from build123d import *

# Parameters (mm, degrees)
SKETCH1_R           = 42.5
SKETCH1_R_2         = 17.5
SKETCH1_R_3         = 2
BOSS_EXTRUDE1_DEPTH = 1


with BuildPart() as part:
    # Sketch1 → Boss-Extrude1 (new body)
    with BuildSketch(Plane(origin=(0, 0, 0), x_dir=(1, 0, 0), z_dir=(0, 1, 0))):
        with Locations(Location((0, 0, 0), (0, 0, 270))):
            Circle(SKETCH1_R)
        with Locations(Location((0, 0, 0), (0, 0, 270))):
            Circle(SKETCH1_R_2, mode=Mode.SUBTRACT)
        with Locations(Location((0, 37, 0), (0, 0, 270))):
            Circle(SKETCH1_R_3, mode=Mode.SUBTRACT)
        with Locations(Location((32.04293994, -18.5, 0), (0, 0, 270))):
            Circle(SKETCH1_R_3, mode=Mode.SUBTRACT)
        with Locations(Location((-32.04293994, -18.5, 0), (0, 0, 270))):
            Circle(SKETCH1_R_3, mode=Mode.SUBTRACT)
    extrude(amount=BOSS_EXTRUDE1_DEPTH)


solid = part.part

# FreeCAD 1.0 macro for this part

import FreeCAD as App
import Part
import Sketcher
from FreeCAD import Vector

doc = App.newDocument("Part")
body = doc.addObject("PartDesign::Body", "Body")

sketch1 = body.newObject("Sketcher::SketchObject", "Sketch")
sketch1.AttachmentSupport = (doc.getObject("XZ_Plane"), [""])
sketch1.MapMode = "FlatFace"
sketch1.addGeometry([
    Part.Circle(Vector(0, 0, 0), Vector(0, 0, 1), 42.5),
    Part.Circle(Vector(0, -37, 0), Vector(0, 0, 1), 2),
    Part.Circle(Vector(-32, 18.5, 0), Vector(0, 0, 1), 2),
    Part.Circle(Vector(0, 0, 0), Vector(0, 0, 1), 17.5),
    Part.Circle(Vector(32, 18.5, 0), Vector(0, 0, 1), 2),
], False)
sketch1.addConstraint([
    Sketcher.Constraint("Coincident", 0, 3, -1, 1),
    Sketcher.Constraint("Coincident", 3, 3, -1, 1),
    Sketcher.Constraint("Equal", 1, 2),
    Sketcher.Constraint("Equal", 2, 4),
    Sketcher.Constraint("Symmetric", 2, 3, 4, 3, -2),
    Sketcher.Constraint("PointOnObject", 1, 3, -2),
    Sketcher.Constraint("Diameter", 0, 85.0),
    Sketcher.Constraint("Diameter", 1, 4.0),
    Sketcher.Constraint("Diameter", 3, 35.0),
    Sketcher.Constraint("DistanceY", 1, 3, -1, 1, 37.0),
    Sketcher.Constraint("DistanceY", -1, 1, 2, 3, 18.5),
    Sketcher.Constraint("DistanceX", 2, 3, -1, 1, 32.04294),
])
pad1 = body.newObject("PartDesign::Pad", "Pad")
pad1.Profile = sketch1
pad1.Length = 1
pad1.Reversed = True

doc.recompute()
